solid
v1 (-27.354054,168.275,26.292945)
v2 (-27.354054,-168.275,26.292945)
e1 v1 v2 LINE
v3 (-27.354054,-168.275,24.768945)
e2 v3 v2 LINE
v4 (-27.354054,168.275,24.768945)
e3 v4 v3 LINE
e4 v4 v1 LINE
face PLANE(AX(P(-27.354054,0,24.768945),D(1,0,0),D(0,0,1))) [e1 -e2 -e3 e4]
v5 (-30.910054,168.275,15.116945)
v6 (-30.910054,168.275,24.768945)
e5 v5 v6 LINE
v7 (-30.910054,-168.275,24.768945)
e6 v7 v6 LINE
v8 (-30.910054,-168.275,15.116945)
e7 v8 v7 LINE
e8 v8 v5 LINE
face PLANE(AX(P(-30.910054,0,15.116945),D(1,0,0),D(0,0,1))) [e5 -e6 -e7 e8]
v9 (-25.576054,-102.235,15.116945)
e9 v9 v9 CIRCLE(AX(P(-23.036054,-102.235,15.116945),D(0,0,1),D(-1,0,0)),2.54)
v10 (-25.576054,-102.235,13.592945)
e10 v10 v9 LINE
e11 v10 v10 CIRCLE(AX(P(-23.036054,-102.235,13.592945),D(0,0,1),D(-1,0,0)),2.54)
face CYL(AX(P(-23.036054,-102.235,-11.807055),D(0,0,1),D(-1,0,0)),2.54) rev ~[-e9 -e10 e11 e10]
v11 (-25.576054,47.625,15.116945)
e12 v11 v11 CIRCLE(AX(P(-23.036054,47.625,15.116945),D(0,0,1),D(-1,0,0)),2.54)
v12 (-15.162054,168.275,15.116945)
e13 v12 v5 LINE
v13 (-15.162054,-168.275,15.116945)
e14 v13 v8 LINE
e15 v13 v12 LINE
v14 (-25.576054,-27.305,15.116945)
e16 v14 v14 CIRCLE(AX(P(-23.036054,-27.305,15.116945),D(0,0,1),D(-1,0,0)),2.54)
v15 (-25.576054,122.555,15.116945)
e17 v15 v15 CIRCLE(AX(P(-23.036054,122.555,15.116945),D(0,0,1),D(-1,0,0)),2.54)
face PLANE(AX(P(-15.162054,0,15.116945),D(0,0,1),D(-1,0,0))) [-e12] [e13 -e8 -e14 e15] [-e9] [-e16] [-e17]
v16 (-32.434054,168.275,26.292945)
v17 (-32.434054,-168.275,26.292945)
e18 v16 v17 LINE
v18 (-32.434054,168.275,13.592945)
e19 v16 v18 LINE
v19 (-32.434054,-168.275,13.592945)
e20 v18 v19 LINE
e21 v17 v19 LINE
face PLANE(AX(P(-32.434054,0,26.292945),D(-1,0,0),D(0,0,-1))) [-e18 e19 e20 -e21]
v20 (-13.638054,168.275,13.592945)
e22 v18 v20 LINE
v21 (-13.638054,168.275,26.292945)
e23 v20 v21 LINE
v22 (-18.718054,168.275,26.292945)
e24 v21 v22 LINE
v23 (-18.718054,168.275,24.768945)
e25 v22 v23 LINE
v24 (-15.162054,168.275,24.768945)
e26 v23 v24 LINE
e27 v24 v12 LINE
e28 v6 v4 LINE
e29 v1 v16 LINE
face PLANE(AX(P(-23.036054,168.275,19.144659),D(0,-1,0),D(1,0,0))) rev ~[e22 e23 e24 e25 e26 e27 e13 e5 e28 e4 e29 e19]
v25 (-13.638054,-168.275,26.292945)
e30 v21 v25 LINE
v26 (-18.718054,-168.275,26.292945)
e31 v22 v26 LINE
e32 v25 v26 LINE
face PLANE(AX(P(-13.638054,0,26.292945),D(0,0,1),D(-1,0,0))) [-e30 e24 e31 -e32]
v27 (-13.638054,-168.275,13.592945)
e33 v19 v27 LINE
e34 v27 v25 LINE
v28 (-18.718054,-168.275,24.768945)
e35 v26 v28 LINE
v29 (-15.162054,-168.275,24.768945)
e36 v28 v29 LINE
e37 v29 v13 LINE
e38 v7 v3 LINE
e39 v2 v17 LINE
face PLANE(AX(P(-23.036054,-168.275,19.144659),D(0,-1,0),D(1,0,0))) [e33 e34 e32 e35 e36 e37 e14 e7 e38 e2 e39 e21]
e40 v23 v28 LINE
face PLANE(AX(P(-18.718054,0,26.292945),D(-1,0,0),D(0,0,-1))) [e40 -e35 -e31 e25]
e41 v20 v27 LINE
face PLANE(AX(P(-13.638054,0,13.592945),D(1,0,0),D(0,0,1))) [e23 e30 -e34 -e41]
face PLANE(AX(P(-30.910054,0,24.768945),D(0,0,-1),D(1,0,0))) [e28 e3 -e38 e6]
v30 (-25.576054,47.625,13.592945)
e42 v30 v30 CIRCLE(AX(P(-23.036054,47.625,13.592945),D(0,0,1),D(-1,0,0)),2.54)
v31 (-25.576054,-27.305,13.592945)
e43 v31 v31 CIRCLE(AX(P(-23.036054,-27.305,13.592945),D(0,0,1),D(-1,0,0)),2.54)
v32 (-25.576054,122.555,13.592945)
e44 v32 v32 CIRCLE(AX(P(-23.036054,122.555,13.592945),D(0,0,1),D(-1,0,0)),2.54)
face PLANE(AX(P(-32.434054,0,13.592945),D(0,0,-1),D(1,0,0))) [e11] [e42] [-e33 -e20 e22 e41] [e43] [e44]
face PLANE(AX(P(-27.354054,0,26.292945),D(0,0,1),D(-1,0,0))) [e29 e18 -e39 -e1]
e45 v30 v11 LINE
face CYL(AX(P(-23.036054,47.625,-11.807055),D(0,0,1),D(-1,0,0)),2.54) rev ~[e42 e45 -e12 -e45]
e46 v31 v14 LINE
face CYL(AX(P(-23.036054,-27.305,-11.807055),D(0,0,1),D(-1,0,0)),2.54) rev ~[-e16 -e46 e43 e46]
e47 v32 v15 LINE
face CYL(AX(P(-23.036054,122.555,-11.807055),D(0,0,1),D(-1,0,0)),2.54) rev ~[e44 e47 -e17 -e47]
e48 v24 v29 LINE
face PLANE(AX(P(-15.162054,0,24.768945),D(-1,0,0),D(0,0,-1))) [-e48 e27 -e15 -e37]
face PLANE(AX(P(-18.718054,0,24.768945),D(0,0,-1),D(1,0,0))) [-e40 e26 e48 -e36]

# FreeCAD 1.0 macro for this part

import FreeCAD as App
import Part
import Sketcher
Q = App.Units.Quantity


def add_polygon(sketch, points):
    """Adds a closed chain of lines whose ends are joined by coincident constraints."""
    first, n = sketch.GeometryCount, len(points)
    for a, b in zip(points, points[1:] + points[:1]):
        sketch.addGeometry(Part.LineSegment(App.Vector(*a, 0), App.Vector(*b, 0)), False)
    for i in range(n):
        sketch.addConstraint(Sketcher.Constraint("Coincident", first + i, 2, first + (i + 1) % n, 1))

doc = App.newDocument("Part")
body = doc.addObject("PartDesign::Body", "Body")

# Sketch on XZ plane
sketch1 = body.newObject("Sketcher::SketchObject", "Sketch")
sketch1.AttachmentSupport = (doc.getObject("XZ_Plane"), [""])
sketch1.MapMode = "FlatFace"
add_polygon(sketch1, [(-30.9, 24.8), (-27.4, 24.8), (-27.4, 26.3), (-32.4, 26.3), (-32.4, 13.6), (-13.6, 13.6), (-13.6, 26.3), (-18.7, 26.3), (-18.7, 24.8), (-15.2, 24.8), (-15.2, 15.1), (-30.9, 15.1)])  # lines 0-11
sketch1.addConstraint([
    Sketcher.Constraint("Horizontal", 0),
    Sketcher.Constraint("Vertical", 1),
    Sketcher.Constraint("Horizontal", 2),
    Sketcher.Constraint("Vertical", 3),
    Sketcher.Constraint("Horizontal", 4),
    Sketcher.Constraint("Vertical", 5),
    Sketcher.Constraint("Horizontal", 6),
    Sketcher.Constraint("Vertical", 7),
    Sketcher.Constraint("Horizontal", 8),
    Sketcher.Constraint("Vertical", 9),
    Sketcher.Constraint("Horizontal", 10),
    Sketcher.Constraint("Vertical", 11),
    Sketcher.Constraint("Horizontal", 2, 2, 5, 2),
    Sketcher.Constraint("Horizontal", 0, 2, 7, 2),
    Sketcher.Constraint("Equal", 2, 6),
    Sketcher.Constraint("Equal", 0, 8),
    Sketcher.Constraint("DistanceX", 2, 2, 2, 1, Q("0.2 in")),
    Sketcher.Constraint("DistanceY", 3, 2, 3, 1, Q("0.5 in")),
    Sketcher.Constraint("DistanceX", 0, 1, 0, 2, Q("0.14 in")),
    Sketcher.Constraint("DistanceX", 4, 1, 4, 2, Q("0.74 in")),
    Sketcher.Constraint("DistanceY", 1, 1, 1, 2, Q("0.06 in")),
    Sketcher.Constraint("DistanceY", 9, 2, 9, 1, Q("0.38 in")),
    Sketcher.Constraint("DistanceX", 0, 2, -1, 1, 27.354054),
    Sketcher.Constraint("DistanceY", -1, 1, 0, 2, 24.768945),
])
pad1 = body.newObject("PartDesign::Pad", "Pad")
pad1.Profile = sketch1
pad1.Length = Q("13.25 in")
pad1.Midplane = True

# Sketch on XY plane
sketch2 = body.newObject("Sketcher::SketchObject", "Sketch001")
sketch2.AttachmentSupport = (doc.getObject("XY_Plane"), [""])
sketch2.MapMode = "FlatFace"
sketch2.AttachmentOffset = App.Placement(App.Vector(0, 0, 13.592945), App.Rotation())
sketch2.addGeometry([
    Part.Circle(App.Vector(-23, -102.2, 0), App.Vector(0, 0, 1), 2.5),
    Part.Circle(App.Vector(-23, -27.3, 0), App.Vector(0, 0, 1), 2.5),
    Part.Circle(App.Vector(-23, 47.6, 0), App.Vector(0, 0, 1), 2.5),
    Part.Circle(App.Vector(-23, 122.6, 0), App.Vector(0, 0, 1), 2.5),
], False)
sketch2.addConstraint([
    Sketcher.Constraint("Equal", 0, 1),
    Sketcher.Constraint("Equal", 1, 2),
    Sketcher.Constraint("Equal", 2, 3),
    Sketcher.Constraint("Vertical", 0, 3, 1, 3),
    Sketcher.Constraint("Vertical", 1, 3, 2, 3),
    Sketcher.Constraint("Vertical", 2, 3, 3, 3),
    Sketcher.Constraint("Diameter", 0, Q("0.2 in")),
    Sketcher.Constraint("DistanceY", 0, 3, 2, 3, Q("5.9 in")),
    Sketcher.Constraint("DistanceY", 1, 3, 3, 3, Q("5.9 in")),
    Sketcher.Constraint("DistanceY", 0, 3, 1, 3, Q("2.95 in")),
    Sketcher.Constraint("DistanceY", 0, 3, -1, 1, Q("4.025 in")),
    Sketcher.Constraint("DistanceX", 0, 3, -1, 1, 23.036054),
])
doc.recompute()
hole = body.newObject("PartDesign::Hole", "Hole")
hole.Profile = sketch2
hole.ThreadType = "None"
hole.Diameter = Q("0.2 in")
hole.DepthType = "Dimension"
hole.Depth = Q("1 in")
hole.DrillPoint = "Angled"
hole.DrillPointAngle = 118
hole.Reversed = True

doc.recompute()
